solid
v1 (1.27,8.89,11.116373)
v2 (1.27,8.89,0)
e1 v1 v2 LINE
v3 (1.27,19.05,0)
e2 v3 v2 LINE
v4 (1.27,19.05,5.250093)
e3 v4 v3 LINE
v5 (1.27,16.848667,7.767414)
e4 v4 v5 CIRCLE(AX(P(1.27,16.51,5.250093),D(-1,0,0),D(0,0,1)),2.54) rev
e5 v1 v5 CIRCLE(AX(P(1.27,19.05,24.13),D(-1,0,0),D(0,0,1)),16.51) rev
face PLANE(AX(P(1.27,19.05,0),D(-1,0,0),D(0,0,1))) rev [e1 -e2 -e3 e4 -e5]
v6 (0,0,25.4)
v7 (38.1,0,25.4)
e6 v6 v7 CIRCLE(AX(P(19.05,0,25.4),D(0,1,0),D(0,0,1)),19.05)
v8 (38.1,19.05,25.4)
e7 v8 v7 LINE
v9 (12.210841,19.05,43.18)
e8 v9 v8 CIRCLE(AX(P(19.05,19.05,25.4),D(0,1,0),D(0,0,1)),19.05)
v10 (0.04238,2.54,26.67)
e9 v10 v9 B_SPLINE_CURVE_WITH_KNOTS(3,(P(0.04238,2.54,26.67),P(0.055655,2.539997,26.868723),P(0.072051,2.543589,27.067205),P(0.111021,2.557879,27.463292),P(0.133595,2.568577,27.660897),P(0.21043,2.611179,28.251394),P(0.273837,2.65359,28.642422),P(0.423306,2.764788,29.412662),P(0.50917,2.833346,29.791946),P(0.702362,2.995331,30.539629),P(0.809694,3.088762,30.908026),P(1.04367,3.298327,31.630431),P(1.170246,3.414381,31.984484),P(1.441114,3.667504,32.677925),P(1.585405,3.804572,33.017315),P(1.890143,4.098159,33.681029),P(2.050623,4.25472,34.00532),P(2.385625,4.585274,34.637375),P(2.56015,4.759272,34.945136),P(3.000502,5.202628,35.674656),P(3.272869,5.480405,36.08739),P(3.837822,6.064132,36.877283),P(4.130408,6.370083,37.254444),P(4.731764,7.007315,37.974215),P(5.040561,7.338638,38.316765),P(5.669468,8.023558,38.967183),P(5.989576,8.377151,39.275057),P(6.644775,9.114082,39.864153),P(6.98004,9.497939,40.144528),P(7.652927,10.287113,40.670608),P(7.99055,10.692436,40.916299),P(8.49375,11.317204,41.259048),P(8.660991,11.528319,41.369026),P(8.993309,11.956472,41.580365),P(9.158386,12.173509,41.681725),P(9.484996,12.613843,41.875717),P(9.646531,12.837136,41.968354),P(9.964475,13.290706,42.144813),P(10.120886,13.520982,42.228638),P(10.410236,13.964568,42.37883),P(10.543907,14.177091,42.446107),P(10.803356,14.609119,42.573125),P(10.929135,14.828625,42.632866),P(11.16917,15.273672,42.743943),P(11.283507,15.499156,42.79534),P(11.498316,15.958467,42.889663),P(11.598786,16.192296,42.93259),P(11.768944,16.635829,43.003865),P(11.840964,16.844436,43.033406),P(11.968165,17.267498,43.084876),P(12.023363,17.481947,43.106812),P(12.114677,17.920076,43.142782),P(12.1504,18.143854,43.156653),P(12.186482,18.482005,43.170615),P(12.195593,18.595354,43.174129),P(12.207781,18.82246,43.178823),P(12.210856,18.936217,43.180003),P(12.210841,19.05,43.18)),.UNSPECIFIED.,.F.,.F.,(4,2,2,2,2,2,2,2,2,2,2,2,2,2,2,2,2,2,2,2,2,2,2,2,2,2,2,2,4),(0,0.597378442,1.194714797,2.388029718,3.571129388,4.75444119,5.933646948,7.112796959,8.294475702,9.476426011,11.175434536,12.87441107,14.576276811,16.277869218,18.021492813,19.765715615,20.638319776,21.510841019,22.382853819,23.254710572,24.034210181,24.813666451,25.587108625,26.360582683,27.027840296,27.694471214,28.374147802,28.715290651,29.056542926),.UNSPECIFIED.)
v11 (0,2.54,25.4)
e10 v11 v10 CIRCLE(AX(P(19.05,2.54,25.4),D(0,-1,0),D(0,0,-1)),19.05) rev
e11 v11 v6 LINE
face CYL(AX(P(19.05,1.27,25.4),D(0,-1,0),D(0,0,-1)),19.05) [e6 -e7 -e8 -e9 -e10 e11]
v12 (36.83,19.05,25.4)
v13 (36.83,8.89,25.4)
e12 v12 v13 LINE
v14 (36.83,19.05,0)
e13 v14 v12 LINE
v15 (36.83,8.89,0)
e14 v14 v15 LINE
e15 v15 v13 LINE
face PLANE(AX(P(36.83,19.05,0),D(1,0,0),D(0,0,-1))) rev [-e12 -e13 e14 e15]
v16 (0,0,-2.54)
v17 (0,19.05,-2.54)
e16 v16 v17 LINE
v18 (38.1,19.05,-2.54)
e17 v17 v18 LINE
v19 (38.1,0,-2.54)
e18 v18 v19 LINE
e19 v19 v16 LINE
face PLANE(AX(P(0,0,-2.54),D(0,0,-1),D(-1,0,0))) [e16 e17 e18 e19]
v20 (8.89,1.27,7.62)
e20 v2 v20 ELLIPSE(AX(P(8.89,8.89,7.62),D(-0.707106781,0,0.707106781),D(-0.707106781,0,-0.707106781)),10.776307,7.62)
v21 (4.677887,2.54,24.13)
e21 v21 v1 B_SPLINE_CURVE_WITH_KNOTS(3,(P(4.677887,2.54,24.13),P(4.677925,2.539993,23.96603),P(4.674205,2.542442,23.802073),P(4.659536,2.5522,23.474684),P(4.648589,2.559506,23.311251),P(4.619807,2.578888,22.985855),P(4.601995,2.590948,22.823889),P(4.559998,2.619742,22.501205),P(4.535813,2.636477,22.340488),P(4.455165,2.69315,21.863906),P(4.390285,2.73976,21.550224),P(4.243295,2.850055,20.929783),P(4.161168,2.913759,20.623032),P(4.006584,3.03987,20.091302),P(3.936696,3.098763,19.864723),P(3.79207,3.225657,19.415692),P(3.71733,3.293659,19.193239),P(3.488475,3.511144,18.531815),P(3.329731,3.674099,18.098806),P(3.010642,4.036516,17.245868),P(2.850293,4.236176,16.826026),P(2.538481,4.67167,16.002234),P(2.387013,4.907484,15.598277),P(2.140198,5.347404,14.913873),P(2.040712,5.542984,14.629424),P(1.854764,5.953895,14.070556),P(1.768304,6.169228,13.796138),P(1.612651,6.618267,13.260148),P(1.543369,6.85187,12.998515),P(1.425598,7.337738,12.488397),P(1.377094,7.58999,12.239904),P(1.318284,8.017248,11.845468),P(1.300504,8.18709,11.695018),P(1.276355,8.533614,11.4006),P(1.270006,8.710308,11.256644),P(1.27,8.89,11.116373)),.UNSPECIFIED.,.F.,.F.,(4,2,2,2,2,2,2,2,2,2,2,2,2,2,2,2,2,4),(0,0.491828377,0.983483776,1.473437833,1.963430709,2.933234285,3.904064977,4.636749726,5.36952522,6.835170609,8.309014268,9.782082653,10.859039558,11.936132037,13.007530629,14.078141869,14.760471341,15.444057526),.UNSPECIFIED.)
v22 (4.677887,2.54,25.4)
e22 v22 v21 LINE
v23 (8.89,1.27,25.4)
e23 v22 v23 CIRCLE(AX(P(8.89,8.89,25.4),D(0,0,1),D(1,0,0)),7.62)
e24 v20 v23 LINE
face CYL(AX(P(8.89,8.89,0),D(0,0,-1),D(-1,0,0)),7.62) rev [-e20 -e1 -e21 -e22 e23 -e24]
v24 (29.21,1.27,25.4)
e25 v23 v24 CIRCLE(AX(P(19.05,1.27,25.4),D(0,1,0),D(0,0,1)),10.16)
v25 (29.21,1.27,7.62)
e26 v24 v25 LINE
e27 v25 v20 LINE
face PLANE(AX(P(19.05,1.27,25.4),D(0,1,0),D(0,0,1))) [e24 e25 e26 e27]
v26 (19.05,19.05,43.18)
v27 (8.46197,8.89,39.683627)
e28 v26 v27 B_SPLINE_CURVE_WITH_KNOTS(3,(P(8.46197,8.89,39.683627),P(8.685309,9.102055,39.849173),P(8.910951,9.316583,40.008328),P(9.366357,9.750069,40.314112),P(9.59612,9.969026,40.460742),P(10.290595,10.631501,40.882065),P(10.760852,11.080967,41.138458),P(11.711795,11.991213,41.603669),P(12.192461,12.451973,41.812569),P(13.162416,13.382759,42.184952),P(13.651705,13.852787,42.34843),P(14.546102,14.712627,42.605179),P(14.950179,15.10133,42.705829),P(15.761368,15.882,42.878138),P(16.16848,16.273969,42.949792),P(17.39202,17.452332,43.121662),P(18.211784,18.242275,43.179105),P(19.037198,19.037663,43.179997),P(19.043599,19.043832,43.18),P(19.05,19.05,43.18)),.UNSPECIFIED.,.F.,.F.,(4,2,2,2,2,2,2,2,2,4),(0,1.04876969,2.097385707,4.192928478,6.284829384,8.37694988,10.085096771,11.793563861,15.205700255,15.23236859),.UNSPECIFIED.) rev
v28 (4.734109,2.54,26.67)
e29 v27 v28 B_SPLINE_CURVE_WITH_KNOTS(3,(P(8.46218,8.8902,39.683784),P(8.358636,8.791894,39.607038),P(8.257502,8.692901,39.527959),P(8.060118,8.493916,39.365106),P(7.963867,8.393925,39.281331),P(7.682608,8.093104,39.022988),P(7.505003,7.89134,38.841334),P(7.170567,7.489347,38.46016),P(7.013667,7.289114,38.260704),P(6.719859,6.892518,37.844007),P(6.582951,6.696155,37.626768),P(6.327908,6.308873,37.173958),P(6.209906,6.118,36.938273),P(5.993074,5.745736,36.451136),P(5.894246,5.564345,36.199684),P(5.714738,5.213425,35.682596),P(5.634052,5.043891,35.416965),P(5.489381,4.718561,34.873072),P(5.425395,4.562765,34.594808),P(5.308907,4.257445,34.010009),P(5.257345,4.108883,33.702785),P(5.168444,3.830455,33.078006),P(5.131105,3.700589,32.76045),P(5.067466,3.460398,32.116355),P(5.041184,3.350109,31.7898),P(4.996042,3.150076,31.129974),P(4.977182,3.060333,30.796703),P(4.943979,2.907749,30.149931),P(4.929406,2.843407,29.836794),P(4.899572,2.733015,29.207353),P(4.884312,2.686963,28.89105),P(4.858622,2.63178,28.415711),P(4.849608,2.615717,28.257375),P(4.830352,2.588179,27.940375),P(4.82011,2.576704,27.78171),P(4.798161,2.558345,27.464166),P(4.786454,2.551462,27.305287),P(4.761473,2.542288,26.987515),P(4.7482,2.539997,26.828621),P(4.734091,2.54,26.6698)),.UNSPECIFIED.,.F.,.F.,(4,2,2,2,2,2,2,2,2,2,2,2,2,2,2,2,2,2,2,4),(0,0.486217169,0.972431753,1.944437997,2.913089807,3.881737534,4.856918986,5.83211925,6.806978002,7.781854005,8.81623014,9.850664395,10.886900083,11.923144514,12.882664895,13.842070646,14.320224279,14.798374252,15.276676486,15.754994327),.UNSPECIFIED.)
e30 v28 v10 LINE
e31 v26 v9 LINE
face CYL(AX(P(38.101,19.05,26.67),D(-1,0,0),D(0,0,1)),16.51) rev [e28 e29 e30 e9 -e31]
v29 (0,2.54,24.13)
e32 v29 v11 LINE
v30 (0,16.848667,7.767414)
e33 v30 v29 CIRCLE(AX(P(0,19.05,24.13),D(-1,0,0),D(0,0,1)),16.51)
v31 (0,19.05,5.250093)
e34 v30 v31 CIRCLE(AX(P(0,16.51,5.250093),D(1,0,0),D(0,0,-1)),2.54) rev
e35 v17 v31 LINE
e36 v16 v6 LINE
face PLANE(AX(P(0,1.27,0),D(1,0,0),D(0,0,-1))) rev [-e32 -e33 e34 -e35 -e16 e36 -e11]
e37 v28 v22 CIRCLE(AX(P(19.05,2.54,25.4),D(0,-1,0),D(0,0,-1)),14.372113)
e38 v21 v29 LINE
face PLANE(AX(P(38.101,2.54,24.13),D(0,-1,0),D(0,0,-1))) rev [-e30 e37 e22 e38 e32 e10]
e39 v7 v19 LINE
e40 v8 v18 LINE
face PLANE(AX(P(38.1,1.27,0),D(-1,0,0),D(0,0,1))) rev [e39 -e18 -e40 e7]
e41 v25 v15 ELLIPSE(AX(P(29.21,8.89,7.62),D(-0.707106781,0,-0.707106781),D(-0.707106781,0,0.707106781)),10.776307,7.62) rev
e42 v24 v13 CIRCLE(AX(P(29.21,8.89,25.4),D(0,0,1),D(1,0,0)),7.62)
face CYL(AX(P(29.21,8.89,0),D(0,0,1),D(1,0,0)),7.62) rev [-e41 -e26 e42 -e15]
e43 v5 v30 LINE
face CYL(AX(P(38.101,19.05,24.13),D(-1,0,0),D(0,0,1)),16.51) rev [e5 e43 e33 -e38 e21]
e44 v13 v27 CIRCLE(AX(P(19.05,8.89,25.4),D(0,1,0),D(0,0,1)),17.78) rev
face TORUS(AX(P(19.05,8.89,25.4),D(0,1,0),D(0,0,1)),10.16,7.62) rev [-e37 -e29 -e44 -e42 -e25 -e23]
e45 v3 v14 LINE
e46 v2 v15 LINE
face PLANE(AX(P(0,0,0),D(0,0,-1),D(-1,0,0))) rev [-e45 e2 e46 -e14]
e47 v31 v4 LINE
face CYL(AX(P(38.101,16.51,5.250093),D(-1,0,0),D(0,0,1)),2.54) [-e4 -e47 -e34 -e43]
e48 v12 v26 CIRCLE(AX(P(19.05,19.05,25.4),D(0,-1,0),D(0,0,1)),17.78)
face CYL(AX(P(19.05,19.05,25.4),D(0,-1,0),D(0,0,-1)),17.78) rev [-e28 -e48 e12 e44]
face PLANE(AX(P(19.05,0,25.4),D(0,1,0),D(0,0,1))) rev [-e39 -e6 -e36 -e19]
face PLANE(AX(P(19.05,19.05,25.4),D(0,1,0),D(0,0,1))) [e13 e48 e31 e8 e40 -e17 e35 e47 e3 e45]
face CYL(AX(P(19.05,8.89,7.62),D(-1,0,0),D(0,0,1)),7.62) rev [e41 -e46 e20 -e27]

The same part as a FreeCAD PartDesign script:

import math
import FreeCAD as App
import Part
import Sketcher
Q = App.Units.Quantity


def edges_at(feature, points):
    """Names of the edges that pass closest to the given points."""
    edges = feature.Shape.Edges
    near = lambda p: min(range(len(edges)), key=lambda i: edges[i].distToShape(Part.Vertex(*p))[0])
    return sorted({f"Edge{near(p) + 1}" for p in points})

doc = App.newDocument("Part")
body = doc.addObject("PartDesign::Body", "Body")

# Sketch on XZ plane
sketch1 = doc.addObject("Sketcher::SketchObject", "Sketch")
body.addObject(sketch1)
sketch1.AttachmentSupport = (doc.XZ_Plane, [""])
sketch1.MapMode = "FlatFace"
sketch1.addGeometry([
    Part.LineSegment(App.Vector(38, 0, 0), App.Vector(0, 0, 0)),
    Part.LineSegment(App.Vector(0, 0, 0), App.Vector(0, 25, 0)),
    Part.ArcOfCircle(Part.Circle(App.Vector(19, 25, 0), App.Vector(0, 0, 1), 19), math.radians(0), math.radians(180)),
    Part.LineSegment(App.Vector(38, 25, 0), App.Vector(38, 0, 0)),
], False)
sketch1.addConstraint([
    Sketcher.Constraint("Coincident", 0, 2, 1, 1),
    Sketcher.Constraint("Tangent", 1, 2, 2, 2),
    Sketcher.Constraint("Tangent", 2, 1, 3, 1),
    Sketcher.Constraint("Coincident", 3, 2, 0, 1),
    Sketcher.Constraint("Horizontal", 0),
    Sketcher.Constraint("Vertical", 1),
    Sketcher.Constraint("Vertical", 3),
    Sketcher.Constraint("Coincident", 0, 2, -1, 1),
    Sketcher.Constraint("DistanceY", 1, 1, 1, 2, Q("1 in")),
    Sketcher.Constraint("Radius", 2, Q("0.75 in")),
])
pad1 = doc.addObject("PartDesign::Pad", "Pad")
body.addObject(pad1)
pad1.Profile = sketch1
pad1.Length = Q("0.05 in")
pad1.Reversed = True

# Sketch on XZ plane
sketch2 = doc.addObject("Sketcher::SketchObject", "Sketch001")
body.addObject(sketch2)
sketch2.AttachmentSupport = (doc.XZ_Plane, [""])
sketch2.MapMode = "FlatFace"
sketch2.AttachmentOffset = App.Placement(App.Vector(0, 0, -0.05 * 25.4), App.Rotation())
sketch2.addGeometry([
    Part.LineSegment(App.Vector(0, 0, 0), App.Vector(0, 25.4, 0)),  # 0
    Part.ArcOfCircle(Part.Circle(App.Vector(19.1, 25.4, 0), App.Vector(0, 0, 1), 19.1), math.radians(0), math.radians(180)),  # 1
    Part.LineSegment(App.Vector(38.1, 25.4, 0), App.Vector(38.1, 0, 0)),  # 2
    Part.LineSegment(App.Vector(38.1, 0, 0), App.Vector(36.8, 0, 0)),  # 3
    Part.LineSegment(App.Vector(36.8, 0, 0), App.Vector(36.8, 25.4, 0)),  # 4
    Part.ArcOfCircle(Part.Circle(App.Vector(19.1, 25.4, 0), App.Vector(0, 0, 1), 17.8), math.radians(0), math.radians(180)),  # 5
    Part.LineSegment(App.Vector(1.3, 25.4, 0), App.Vector(1.3, 0, 0)),  # 6
    Part.LineSegment(App.Vector(1.3, 0, 0), App.Vector(0, 0, 0)),  # 7
], False)
sketch2.addConstraint([
    Sketcher.Constraint("Tangent", 0, 2, 1, 2),
    Sketcher.Constraint("Tangent", 1, 1, 2, 1),
    Sketcher.Constraint("Coincident", 2, 2, 3, 1),
    Sketcher.Constraint("Coincident", 3, 2, 4, 1),
    Sketcher.Constraint("Tangent", 4, 2, 5, 1),
    Sketcher.Constraint("Tangent", 5, 2, 6, 1),
    Sketcher.Constraint("Coincident", 6, 2, 7, 1),
    Sketcher.Constraint("Coincident", 7, 2, 0, 1),
    Sketcher.Constraint("Vertical", 0),
    Sketcher.Constraint("Vertical", 2),
    Sketcher.Constraint("Horizontal", 3),
    Sketcher.Constraint("Vertical", 4),
    Sketcher.Constraint("Vertical", 6),
    Sketcher.Constraint("Horizontal", 7),
    Sketcher.Constraint("Coincident", 7, 2, -1, 1),
    Sketcher.Constraint("Coincident", 5, 3, 1, 3),
    Sketcher.Constraint("PointOnObject", 2, 2, -1),
    Sketcher.Constraint("Radius", 5, Q("0.7 in")),
    Sketcher.Constraint("DistanceY", 0, 1, 0, 2, Q("1 in")),
    Sketcher.Constraint("Radius", 1, Q("0.75 in")),
])
pad2 = doc.addObject("PartDesign::Pad", "Pad001")
body.addObject(pad2)
pad2.Profile = sketch2
pad2.Length = Q("0.7 in")
pad2.Reversed = True

# Sketch on XY plane
sketch3 = doc.addObject("Sketcher::SketchObject", "Sketch002")
body.addObject(sketch3)
sketch3.AttachmentSupport = (doc.XY_Plane, [""])
sketch3.MapMode = "FlatFace"
sketch3.addGeometry([
    Part.LineSegment(App.Vector(38, 19, 0), App.Vector(38, 0, 0)),
    Part.LineSegment(App.Vector(38, 0, 0), App.Vector(0, 0, 0)),
    Part.LineSegment(App.Vector(0, 0, 0), App.Vector(0, 19, 0)),
    Part.LineSegment(App.Vector(0, 19, 0), App.Vector(38, 19, 0)),
], False)
sketch3.addConstraint([
    Sketcher.Constraint("Coincident", 0, 2, 1, 1),
    Sketcher.Constraint("Coincident", 1, 2, 2, 1),
    Sketcher.Constraint("Coincident", 2, 2, 3, 1),
    Sketcher.Constraint("Coincident", 3, 2, 0, 1),
    Sketcher.Constraint("Vertical", 0),
    Sketcher.Constraint("Horizontal", 1),
    Sketcher.Constraint("Vertical", 2),
    Sketcher.Constraint("Horizontal", 3),
    Sketcher.Constraint("Coincident", 1, 2, -1, 1),
    Sketcher.Constraint("DistanceX", 1, 2, 1, 1, Q("1.5 in")),
    Sketcher.Constraint("DistanceY", 0, 2, 0, 1, Q("0.75 in")),
])
pad3 = doc.addObject("PartDesign::Pad", "Pad002")
body.addObject(pad3)
pad3.Profile = sketch3
pad3.Length = Q("0.1 in")
pad3.Reversed = True
doc.recompute()

fillet = doc.addObject("PartDesign::Fillet", "Fillet")
body.addObject(fillet)
fillet.Base = (pad3, edges_at(pad3, [
    (19.05, 1.27, 0),
    (36.83, 1.27, 12.7),
    (19.05, 1.27, 43.18),
    (1.27, 1.27, 12.7),
]))
fillet.Radius = Q("0.3 in")

# Sketch on YZ plane
sketch4 = doc.addObject("Sketcher::SketchObject", "Sketch003")
body.addObject(sketch4)
sketch4.AttachmentSupport = (doc.YZ_Plane, [""])
sketch4.MapMode = "FlatFace"
sketch4.addGeometry([
    Part.LineSegment(App.Vector(35.6, 26.7, 0), App.Vector(35.6, 24.1, 0)),
    Part.ArcOfCircle(Part.Circle(App.Vector(19.1, 24.1, 0), App.Vector(0, 0, 1), 16.5), math.radians(180), math.radians(360)),
    Part.LineSegment(App.Vector(2.5, 24.1, 0), App.Vector(2.5, 26.7, 0)),
    Part.ArcOfCircle(Part.Circle(App.Vector(19.1, 26.7, 0), App.Vector(0, 0, 1), 16.5), math.radians(0), math.radians(180)),
], False)
sketch4.addConstraint([
    Sketcher.Constraint("Tangent", 0, 2, 1, 2),
    Sketcher.Constraint("Tangent", 1, 1, 2, 1),
    Sketcher.Constraint("Tangent", 2, 2, 3, 2),
    Sketcher.Constraint("Tangent", 3, 1, 0, 1),
    Sketcher.Constraint("Vertical", 0),
    Sketcher.Constraint("Vertical", 2),
    Sketcher.Constraint("Radius", 1, Q("0.65 in")),
    Sketcher.Constraint("DistanceY", 0, 2, 0, 1, Q("0.1 in")),
    Sketcher.Constraint("DistanceX", -1, 1, 0, 2, Q("1.4 in")),
    Sketcher.Constraint("DistanceY", -1, 1, 1, 3, Q("0.95 in")),
])
pocket1 = doc.addObject("PartDesign::Pocket", "Pocket")
body.addObject(pocket1)
pocket1.Profile = sketch4
pocket1.Length = Q("0.75 in")
pocket1.Reversed = True
doc.recompute()

fillet2 = doc.addObject("PartDesign::Fillet", "Fillet001")
body.addObject(fillet2)
fillet2.Base = (pocket1, edges_at(pocket1, [(0.635, 19.05, 7.62)]))
fillet2.Radius = Q("0.1 in")

doc.recompute()
